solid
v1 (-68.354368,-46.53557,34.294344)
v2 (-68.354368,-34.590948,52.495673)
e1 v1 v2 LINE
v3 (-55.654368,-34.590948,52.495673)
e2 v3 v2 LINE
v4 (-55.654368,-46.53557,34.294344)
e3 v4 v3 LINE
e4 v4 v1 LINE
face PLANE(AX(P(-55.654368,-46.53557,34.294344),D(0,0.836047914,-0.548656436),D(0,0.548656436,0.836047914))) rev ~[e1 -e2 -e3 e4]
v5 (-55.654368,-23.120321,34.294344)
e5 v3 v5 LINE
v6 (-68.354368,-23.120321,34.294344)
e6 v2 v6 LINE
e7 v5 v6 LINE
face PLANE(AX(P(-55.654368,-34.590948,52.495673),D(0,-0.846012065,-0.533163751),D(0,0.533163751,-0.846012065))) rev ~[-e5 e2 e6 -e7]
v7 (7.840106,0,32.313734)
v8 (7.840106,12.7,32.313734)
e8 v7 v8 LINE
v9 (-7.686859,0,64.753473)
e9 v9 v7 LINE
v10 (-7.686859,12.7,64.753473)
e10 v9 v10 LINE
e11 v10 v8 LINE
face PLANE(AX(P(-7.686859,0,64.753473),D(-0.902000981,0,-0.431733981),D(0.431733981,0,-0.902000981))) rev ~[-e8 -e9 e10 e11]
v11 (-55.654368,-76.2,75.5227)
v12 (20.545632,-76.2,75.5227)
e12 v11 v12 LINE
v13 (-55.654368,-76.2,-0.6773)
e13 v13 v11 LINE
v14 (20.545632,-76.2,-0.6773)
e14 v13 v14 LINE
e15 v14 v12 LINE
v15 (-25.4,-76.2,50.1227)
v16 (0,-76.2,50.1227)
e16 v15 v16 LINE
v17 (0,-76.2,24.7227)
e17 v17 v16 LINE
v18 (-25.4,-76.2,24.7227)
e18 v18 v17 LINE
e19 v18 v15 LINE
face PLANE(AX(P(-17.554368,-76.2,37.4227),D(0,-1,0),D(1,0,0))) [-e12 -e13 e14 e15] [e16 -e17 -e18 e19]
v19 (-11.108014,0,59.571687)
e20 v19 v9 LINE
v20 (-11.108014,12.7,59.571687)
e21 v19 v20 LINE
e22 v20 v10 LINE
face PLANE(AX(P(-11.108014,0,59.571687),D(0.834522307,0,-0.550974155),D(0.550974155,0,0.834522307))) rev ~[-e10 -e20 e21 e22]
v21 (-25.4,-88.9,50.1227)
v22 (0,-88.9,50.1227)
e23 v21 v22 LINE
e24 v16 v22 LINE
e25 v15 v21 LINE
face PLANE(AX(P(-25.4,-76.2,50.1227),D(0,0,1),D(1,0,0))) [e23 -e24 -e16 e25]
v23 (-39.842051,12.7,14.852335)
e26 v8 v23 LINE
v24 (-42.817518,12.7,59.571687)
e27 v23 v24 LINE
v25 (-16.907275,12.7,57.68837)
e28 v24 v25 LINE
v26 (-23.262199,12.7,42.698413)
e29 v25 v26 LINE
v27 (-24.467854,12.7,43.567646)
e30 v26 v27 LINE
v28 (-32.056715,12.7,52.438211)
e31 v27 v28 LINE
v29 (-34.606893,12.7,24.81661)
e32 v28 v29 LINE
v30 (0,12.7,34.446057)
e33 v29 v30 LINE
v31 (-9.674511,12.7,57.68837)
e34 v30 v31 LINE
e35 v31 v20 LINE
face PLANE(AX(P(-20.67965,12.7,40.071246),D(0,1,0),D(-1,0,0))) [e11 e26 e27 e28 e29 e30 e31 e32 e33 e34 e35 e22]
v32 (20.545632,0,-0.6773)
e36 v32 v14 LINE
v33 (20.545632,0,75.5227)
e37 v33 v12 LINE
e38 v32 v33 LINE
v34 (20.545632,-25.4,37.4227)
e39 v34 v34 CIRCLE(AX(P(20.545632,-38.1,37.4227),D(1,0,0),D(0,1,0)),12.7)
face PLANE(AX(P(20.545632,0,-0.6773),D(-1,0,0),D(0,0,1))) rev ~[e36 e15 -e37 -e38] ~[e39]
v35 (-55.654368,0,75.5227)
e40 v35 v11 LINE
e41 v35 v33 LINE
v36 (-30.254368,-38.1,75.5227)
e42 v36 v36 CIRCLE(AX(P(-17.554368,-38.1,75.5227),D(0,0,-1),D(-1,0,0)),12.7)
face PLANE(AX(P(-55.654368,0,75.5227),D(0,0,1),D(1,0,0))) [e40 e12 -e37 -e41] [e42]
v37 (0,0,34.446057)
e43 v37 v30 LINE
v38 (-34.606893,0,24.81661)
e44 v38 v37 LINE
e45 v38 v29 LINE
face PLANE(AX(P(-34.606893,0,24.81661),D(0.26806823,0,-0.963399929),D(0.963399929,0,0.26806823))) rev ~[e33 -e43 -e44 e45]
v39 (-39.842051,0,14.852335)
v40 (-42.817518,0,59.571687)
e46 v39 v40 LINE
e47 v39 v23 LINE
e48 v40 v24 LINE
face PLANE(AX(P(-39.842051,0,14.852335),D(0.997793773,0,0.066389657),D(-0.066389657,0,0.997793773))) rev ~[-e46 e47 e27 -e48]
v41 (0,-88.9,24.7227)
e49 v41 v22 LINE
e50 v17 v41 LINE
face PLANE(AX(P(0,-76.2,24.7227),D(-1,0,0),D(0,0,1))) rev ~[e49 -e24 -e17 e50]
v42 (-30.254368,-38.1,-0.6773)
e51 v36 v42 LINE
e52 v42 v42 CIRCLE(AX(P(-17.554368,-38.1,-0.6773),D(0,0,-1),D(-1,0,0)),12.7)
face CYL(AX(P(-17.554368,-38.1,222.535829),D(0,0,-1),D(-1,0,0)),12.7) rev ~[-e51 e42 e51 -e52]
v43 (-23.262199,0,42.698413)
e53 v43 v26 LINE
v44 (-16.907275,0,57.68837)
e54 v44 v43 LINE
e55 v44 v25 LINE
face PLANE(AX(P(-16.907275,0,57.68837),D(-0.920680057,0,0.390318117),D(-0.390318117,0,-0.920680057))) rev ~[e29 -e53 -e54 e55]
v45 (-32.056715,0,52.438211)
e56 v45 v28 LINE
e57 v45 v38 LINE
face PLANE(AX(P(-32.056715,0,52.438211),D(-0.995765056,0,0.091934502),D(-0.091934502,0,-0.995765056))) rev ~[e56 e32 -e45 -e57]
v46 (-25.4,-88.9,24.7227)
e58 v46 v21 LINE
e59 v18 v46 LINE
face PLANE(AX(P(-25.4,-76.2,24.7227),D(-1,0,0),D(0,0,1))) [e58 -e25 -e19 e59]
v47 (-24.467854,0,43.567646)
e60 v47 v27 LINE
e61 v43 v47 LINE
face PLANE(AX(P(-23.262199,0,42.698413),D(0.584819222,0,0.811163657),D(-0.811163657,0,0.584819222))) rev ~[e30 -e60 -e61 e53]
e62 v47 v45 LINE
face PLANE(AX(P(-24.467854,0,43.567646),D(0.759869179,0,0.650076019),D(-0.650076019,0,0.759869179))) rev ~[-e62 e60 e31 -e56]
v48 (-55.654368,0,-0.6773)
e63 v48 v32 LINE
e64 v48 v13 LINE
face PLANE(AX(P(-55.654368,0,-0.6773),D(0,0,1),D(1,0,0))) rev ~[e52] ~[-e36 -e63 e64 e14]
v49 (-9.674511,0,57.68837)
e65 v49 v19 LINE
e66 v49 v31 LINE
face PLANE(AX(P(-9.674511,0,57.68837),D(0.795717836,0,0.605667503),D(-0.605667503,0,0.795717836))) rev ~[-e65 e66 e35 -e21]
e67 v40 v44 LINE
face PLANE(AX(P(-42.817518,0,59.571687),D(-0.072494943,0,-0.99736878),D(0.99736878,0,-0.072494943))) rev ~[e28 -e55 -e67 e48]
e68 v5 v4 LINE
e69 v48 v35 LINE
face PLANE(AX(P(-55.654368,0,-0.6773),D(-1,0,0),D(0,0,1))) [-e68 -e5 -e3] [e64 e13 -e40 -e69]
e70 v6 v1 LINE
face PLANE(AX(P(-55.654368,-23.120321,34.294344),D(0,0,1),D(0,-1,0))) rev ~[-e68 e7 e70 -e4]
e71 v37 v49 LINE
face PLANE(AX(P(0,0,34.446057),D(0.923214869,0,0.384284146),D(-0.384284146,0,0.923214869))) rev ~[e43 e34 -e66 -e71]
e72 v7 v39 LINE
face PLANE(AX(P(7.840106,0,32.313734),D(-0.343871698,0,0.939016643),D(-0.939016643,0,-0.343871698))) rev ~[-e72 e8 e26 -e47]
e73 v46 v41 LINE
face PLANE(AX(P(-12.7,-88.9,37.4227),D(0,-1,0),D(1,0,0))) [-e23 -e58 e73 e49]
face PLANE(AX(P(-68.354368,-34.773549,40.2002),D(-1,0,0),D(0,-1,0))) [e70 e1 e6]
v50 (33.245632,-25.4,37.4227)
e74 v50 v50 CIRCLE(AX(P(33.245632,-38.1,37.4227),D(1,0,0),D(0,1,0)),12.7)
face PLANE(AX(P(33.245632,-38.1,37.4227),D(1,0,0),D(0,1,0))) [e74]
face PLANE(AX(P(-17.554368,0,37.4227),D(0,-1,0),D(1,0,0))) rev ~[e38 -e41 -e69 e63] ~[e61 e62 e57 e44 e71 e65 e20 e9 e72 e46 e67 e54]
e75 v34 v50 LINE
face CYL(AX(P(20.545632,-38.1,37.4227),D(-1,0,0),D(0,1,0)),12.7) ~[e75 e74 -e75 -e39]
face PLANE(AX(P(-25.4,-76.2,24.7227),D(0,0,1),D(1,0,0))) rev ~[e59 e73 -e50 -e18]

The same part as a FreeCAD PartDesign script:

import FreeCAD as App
import Part
import Sketcher
Q = App.Units.Quantity

doc = App.newDocument("Part")
body = doc.addObject("PartDesign::Body", "Body")

# Sketch on XZ plane
sketch1 = body.newObject("Sketcher::SketchObject", "Sketch")
sketch1.AttachmentSupport = (doc.getObject("XZ_Plane"), [""])
sketch1.MapMode = "FlatFace"
sketch1.addGeometry(Part.LineSegment(App.Vector(-56, 76, 0), App.Vector(-56, -1, 0)), False)
sketch1.addGeometry(Part.LineSegment(App.Vector(-56, -1, 0), App.Vector(21, -1, 0)), False)
sketch1.addGeometry(Part.LineSegment(App.Vector(21, -1, 0), App.Vector(21, 76, 0)), False)
sketch1.addGeometry(Part.LineSegment(App.Vector(21, 76, 0), App.Vector(-56, 76, 0)), False)
sketch1.addConstraint(Sketcher.Constraint("Coincident", 0, 2, 1, 1))
sketch1.addConstraint(Sketcher.Constraint("Coincident", 1, 2, 2, 1))
sketch1.addConstraint(Sketcher.Constraint("Coincident", 2, 2, 3, 1))
sketch1.addConstraint(Sketcher.Constraint("Coincident", 3, 2, 0, 1))
sketch1.addConstraint(Sketcher.Constraint("Vertical", 0))
sketch1.addConstraint(Sketcher.Constraint("Horizontal", 1))
sketch1.addConstraint(Sketcher.Constraint("Vertical", 2))
sketch1.addConstraint(Sketcher.Constraint("Horizontal", 3))
sketch1.addConstraint(Sketcher.Constraint("Equal", 3, 0))
sketch1.addConstraint(Sketcher.Constraint("DistanceX", 1, 1, 1, 2, Q("3 in")))
sketch1.addConstraint(Sketcher.Constraint("DistanceY", 0, 2, -1, 1, 0.6773))
sketch1.addConstraint(Sketcher.Constraint("DistanceX", 0, 2, -1, 1, 55.654368))
pad1 = body.newObject("PartDesign::Pad", "Pad")
pad1.Profile = sketch1
pad1.Length = Q("3 in")

# Sketch on XZ plane
sketch2 = body.newObject("Sketcher::SketchObject", "Sketch001")
sketch2.AttachmentSupport = (doc.getObject("XZ_Plane"), [""])
sketch2.MapMode = "FlatFace"
sketch2.AttachmentOffset = App.Placement(App.Vector(0, 0, 3 * 25.4), App.Rotation())
sketch2.addGeometry(Part.LineSegment(App.Vector(-25, 50, 0), App.Vector(-25, 25, 0)), False)
sketch2.addGeometry(Part.LineSegment(App.Vector(-25, 25, 0), App.Vector(0, 25, 0)), False)
sketch2.addGeometry(Part.LineSegment(App.Vector(0, 25, 0), App.Vector(0, 50, 0)), False)
sketch2.addGeometry(Part.LineSegment(App.Vector(0, 50, 0), App.Vector(-25, 50, 0)), False)
sketch2.addConstraint(Sketcher.Constraint("Coincident", 0, 2, 1, 1))
sketch2.addConstraint(Sketcher.Constraint("Coincident", 1, 2, 2, 1))
sketch2.addConstraint(Sketcher.Constraint("Coincident", 2, 2, 3, 1))
sketch2.addConstraint(Sketcher.Constraint("Coincident", 3, 2, 0, 1))
sketch2.addConstraint(Sketcher.Constraint("Vertical", 0))
sketch2.addConstraint(Sketcher.Constraint("Horizontal", 1))
sketch2.addConstraint(Sketcher.Constraint("Vertical", 2))
sketch2.addConstraint(Sketcher.Constraint("Horizontal", 3))
sketch2.addConstraint(Sketcher.Constraint("PointOnObject", 1, 2, -2))
sketch2.addConstraint(Sketcher.Constraint("Equal", 3, 0))
sketch2.addConstraint(Sketcher.Constraint("DistanceX", 1, 1, 1, 2, Q("1 in")))
sketch2.addConstraint(Sketcher.Constraint("DistanceY", -1, 1, 0, 2, 24.7227))
pad2 = body.newObject("PartDesign::Pad", "Pad001")
pad2.Profile = sketch2
pad2.Length = Q("0.5 in")

# Sketch on YZ plane
sketch3 = body.newObject("Sketcher::SketchObject", "Sketch002")
sketch3.AttachmentSupport = (doc.getObject("YZ_Plane"), [""])
sketch3.MapMode = "FlatFace"
sketch3.AttachmentOffset = App.Placement(App.Vector(0, 0, 20.545632), App.Rotation())
sketch3.addGeometry(Part.Circle(App.Vector(-38, 37, 0), App.Vector(0, 0, 1), 13), False)
sketch3.addConstraint(Sketcher.Constraint("Diameter", 0, Q("1 in")))
sketch3.addConstraint(Sketcher.Constraint("DistanceX", 0, 3, -1, 1, Q("1.5 in")))
sketch3.addConstraint(Sketcher.Constraint("DistanceY", -1, 1, 0, 3, 37.4227))
pad3 = body.newObject("PartDesign::Pad", "Pad002")
pad3.Profile = sketch3
pad3.Length = Q("0.5 in")

# Sketch on XY plane
sketch4 = body.newObject("Sketcher::SketchObject", "Sketch003")
sketch4.AttachmentSupport = (doc.getObject("XY_Plane"), [""])
sketch4.MapMode = "FlatFace"
sketch4.AttachmentOffset = App.Placement(App.Vector(0, 0, 75.5227), App.Rotation())
sketch4.addGeometry(Part.Circle(App.Vector(-18, -38, 0), App.Vector(0, 0, 1), 13), False)
sketch4.addConstraint(Sketcher.Constraint("Diameter", 0, Q("1 in")))
sketch4.addConstraint(Sketcher.Constraint("DistanceY", 0, 3, -1, 1, Q("1.5 in")))
sketch4.addConstraint(Sketcher.Constraint("DistanceX", 0, 3, -1, 1, 17.554368))
doc.recompute()
hole = body.newObject("PartDesign::Hole", "Hole")
hole.Profile = sketch4
hole.ThreadType = "None"
hole.Diameter = Q("1 in")
hole.DepthType = "ThroughAll"

# Sketch on YZ plane
sketch5 = body.newObject("Sketcher::SketchObject", "Sketch004")
sketch5.AttachmentSupport = (doc.getObject("YZ_Plane"), [""])
sketch5.MapMode = "FlatFace"
sketch5.AttachmentOffset = App.Placement(App.Vector(0, 0, -55.654368), App.Rotation())
sketch5.addGeometry(Part.LineSegment(App.Vector(-47, 34, 0), App.Vector(-35, 52, 0)), False)
sketch5.addGeometry(Part.LineSegment(App.Vector(-35, 52, 0), App.Vector(-23, 34, 0)), False)
sketch5.addGeometry(Part.LineSegment(App.Vector(-23, 34, 0), App.Vector(-47, 34, 0)), False)
sketch5.addConstraint(Sketcher.Constraint("Coincident", 0, 2, 1, 1))
sketch5.addConstraint(Sketcher.Constraint("Coincident", 1, 2, 2, 1))
sketch5.addConstraint(Sketcher.Constraint("Coincident", 2, 2, 0, 1))
sketch5.addConstraint(Sketcher.Constraint("Horizontal", 2))
sketch5.addConstraint(Sketcher.Constraint("DistanceX", 2, 2, 2, 1, 23.415249))
sketch5.addConstraint(Sketcher.Constraint("DistanceX", 1, 2, -1, 1, 23.120321))
sketch5.addConstraint(Sketcher.Constraint("DistanceY", 1, 2, 0, 2, 18.201329))
sketch5.addConstraint(Sketcher.Constraint("Distance", 0, 21.770677))
sketch5.addConstraint(Sketcher.Constraint("DistanceY", -1, 1, 0, 2, 52.495673))
pad4 = body.newObject("PartDesign::Pad", "Pad003")
pad4.Profile = sketch5
pad4.Length = Q("0.5 in")
pad4.Reversed = True

# Sketch on XZ plane
sketch6 = body.newObject("Sketcher::SketchObject", "Sketch005")
sketch6.AttachmentSupport = (doc.getObject("XZ_Plane"), [""])
sketch6.MapMode = "FlatFace"
sketch6.addGeometry(Part.LineSegment(App.Vector(-9.7, 57.7, 0), App.Vector(-11.1, 59.6, 0)), False)
sketch6.addGeometry(Part.LineSegment(App.Vector(-11.1, 59.6, 0), App.Vector(-7.7, 64.8, 0)), False)
sketch6.addGeometry(Part.LineSegment(App.Vector(-7.7, 64.8, 0), App.Vector(7.8, 32.3, 0)), False)
sketch6.addGeometry(Part.LineSegment(App.Vector(7.8, 32.3, 0), App.Vector(-39.8, 14.9, 0)), False)
sketch6.addGeometry(Part.LineSegment(App.Vector(-39.8, 14.9, 0), App.Vector(-42.8, 59.6, 0)), False)
sketch6.addGeometry(Part.LineSegment(App.Vector(-42.8, 59.6, 0), App.Vector(-16.9, 57.7, 0)), False)
sketch6.addGeometry(Part.LineSegment(App.Vector(-16.9, 57.7, 0), App.Vector(-23.3, 42.7, 0)), False)
sketch6.addGeometry(Part.LineSegment(App.Vector(-23.3, 42.7, 0), App.Vector(-24.5, 43.6, 0)), False)
sketch6.addGeometry(Part.LineSegment(App.Vector(-24.5, 43.6, 0), App.Vector(-32.1, 52.4, 0)), False)
sketch6.addGeometry(Part.LineSegment(App.Vector(-32.1, 52.4, 0), App.Vector(-34.6, 24.8, 0)), False)
sketch6.addGeometry(Part.LineSegment(App.Vector(-34.6, 24.8, 0), App.Vector(0, 34.4, 0)), False)
sketch6.addGeometry(Part.LineSegment(App.Vector(0, 34.4, 0), App.Vector(-9.7, 57.7, 0)), False)
sketch6.addConstraint(Sketcher.Constraint("Coincident", 0, 2, 1, 1))
sketch6.addConstraint(Sketcher.Constraint("Coincident", 1, 2, 2, 1))
sketch6.addConstraint(Sketcher.Constraint("Coincident", 2, 2, 3, 1))
sketch6.addConstraint(Sketcher.Constraint("Coincident", 3, 2, 4, 1))
sketch6.addConstraint(Sketcher.Constraint("Coincident", 4, 2, 5, 1))
sketch6.addConstraint(Sketcher.Constraint("Coincident", 5, 2, 6, 1))
sketch6.addConstraint(Sketcher.Constraint("Coincident", 6, 2, 7, 1))
sketch6.addConstraint(Sketcher.Constraint("Coincident", 7, 2, 8, 1))
sketch6.addConstraint(Sketcher.Constraint("Coincident", 8, 2, 9, 1))
sketch6.addConstraint(Sketcher.Constraint("Coincident", 9, 2, 10, 1))
sketch6.addConstraint(Sketcher.Constraint("Coincident", 10, 2, 11, 1))
sketch6.addConstraint(Sketcher.Constraint("Coincident", 11, 2, 0, 1))
sketch6.addConstraint(Sketcher.Constraint("PointOnObject", 10, 2, -2))
sketch6.addConstraint(Sketcher.Constraint("Horizontal", 0, 2, 4, 2))
sketch6.addConstraint(Sketcher.Constraint("Horizontal", 5, 2, 11, 2))
sketch6.addConstraint(Sketcher.Constraint("Distance", 6, Q("0.6409999 in")))
sketch6.addConstraint(Sketcher.Constraint("Distance", 5, 25.978598))
sketch6.addConstraint(Sketcher.Constraint("DistanceX", 6, 2, -1, 1, 23.262199))
sketch6.addConstraint(Sketcher.Constraint("DistanceY", 3, 2, 2, 2, 17.461399))
sketch6.addConstraint(Sketcher.Constraint("DistanceX", 8, 2, 0, 2, 20.948701))
sketch6.addConstraint(Sketcher.Constraint("DistanceY", 9, 2, 8, 2, 27.621601))
sketch6.addConstraint(Sketcher.Constraint("Distance", 3, 50.77882))
sketch6.addConstraint(Sketcher.Constraint("Distance", 4, 44.818231))
sketch6.addConstraint(Sketcher.Constraint("Distance", 11, 25.17541))
sketch6.addConstraint(Sketcher.Constraint("DistanceX", 1, 2, -1, 1, 7.686859))
sketch6.addConstraint(Sketcher.Constraint("DistanceX", 3, 2, -1, 1, 39.842051))
sketch6.addConstraint(Sketcher.Constraint("DistanceY", -1, 1, 5, 2, 57.68837))
sketch6.addConstraint(Sketcher.Constraint("DistanceY", -1, 1, 8, 2, 52.438211))
sketch6.addConstraint(Sketcher.Constraint("DistanceX", 11, 2, -1, 1, 9.674511))
sketch6.addConstraint(Sketcher.Constraint("DistanceX", 0, 2, 2, 2, 18.94812))
sketch6.addConstraint(Sketcher.Constraint("DistanceY", 2, 2, 1, 2, 32.439739))
sketch6.addConstraint(Sketcher.Constraint("DistanceX", 4, 2, 1, 2, 35.130659))
sketch6.addConstraint(Sketcher.Constraint("DistanceX", 5, 2, 0, 2, 5.799261))
sketch6.addConstraint(Sketcher.Constraint("DistanceX", 7, 2, 5, 2, 7.560579))
sketch6.addConstraint(Sketcher.Constraint("DistanceY", 7, 2, 0, 2, 16.004041))
sketch6.addConstraint(Sketcher.Constraint("DistanceX", 9, 2, 7, 2, 10.139039))
pad5 = body.newObject("PartDesign::Pad", "Pad004")
pad5.Profile = sketch6
pad5.Length = Q("0.5 in")
pad5.Reversed = True

doc.recompute()
